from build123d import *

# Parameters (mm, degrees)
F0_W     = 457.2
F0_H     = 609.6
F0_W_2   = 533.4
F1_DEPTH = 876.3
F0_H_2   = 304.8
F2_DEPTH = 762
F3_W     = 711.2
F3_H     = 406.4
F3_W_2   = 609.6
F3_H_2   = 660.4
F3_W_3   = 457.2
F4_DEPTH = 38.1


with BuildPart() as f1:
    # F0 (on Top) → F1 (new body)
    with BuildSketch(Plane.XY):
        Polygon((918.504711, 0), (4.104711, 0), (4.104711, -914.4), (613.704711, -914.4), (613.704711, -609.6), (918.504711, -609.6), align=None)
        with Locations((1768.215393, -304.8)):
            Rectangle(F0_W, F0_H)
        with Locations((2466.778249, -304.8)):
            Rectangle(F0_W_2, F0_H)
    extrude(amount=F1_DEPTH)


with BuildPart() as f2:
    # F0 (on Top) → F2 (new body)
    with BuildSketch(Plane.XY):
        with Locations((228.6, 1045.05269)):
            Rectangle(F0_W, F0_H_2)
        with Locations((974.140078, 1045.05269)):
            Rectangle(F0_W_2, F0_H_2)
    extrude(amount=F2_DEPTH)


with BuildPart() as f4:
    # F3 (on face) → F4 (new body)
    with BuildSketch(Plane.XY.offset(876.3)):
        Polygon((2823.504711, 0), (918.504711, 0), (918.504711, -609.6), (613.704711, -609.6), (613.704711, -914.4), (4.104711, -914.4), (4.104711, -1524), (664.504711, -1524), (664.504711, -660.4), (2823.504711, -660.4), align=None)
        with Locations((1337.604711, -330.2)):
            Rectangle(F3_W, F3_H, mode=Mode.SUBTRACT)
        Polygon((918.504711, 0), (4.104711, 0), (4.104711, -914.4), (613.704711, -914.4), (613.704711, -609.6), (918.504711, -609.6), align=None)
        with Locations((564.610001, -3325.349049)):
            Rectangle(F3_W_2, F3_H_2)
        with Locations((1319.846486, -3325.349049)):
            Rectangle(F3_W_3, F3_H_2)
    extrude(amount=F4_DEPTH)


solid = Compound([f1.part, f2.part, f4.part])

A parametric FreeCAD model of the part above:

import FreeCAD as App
import Part
import Sketcher

V = App.Vector
Q = App.Units.Quantity


def add_polygon(sketch, points):
    """Adds a closed chain of lines whose ends are joined by coincident constraints."""
    first, n = sketch.GeometryCount, len(points)
    for a, b in zip(points, points[1:] + points[:1]):
        sketch.addGeometry(Part.LineSegment(App.Vector(*a, 0), App.Vector(*b, 0)), False)
    for i in range(n):
        sketch.addConstraint(Sketcher.Constraint("Coincident", first + i, 2, first + (i + 1) % n, 1))

doc = App.newDocument("Part")
body = doc.addObject("PartDesign::Body", "Body")
body.AllowCompound = True

# Sketch on XY plane
sketch1 = body.newObject("Sketcher::SketchObject", "Sketch")
sketch1.AttachmentSupport = (doc.getObject("XY_Plane"), [""])
sketch1.MapMode = "FlatFace"
add_polygon(sketch1, [(918.504711, 0), (4.104711, 0), (4.104711, -914.4), (613.704711, -914.4), (613.704711, -609.6), (918.504711, -609.6)])  # lines 0-5
add_polygon(sketch1, [(1539.615393, 0), (1539.615393, -609.6), (1996.815393, -609.6), (1996.815393, 0)])  # lines 6-9
add_polygon(sketch1, [(2200.078249, 0), (2200.078249, -609.6), (2733.478249, -609.6), (2733.478249, 0)])  # lines 10-13
sketch1.addConstraint([
    Sketcher.Constraint("Horizontal", 0),
    Sketcher.Constraint("Vertical", 1),
    Sketcher.Constraint("Horizontal", 2),
    Sketcher.Constraint("Vertical", 3),
    Sketcher.Constraint("Horizontal", 4),
    Sketcher.Constraint("Vertical", 5),
    Sketcher.Constraint("Vertical", 6),
    Sketcher.Constraint("Horizontal", 7),
    Sketcher.Constraint("Vertical", 8),
    Sketcher.Constraint("Horizontal", 9),
    Sketcher.Constraint("Vertical", 10),
    Sketcher.Constraint("Horizontal", 11),
    Sketcher.Constraint("Vertical", 12),
    Sketcher.Constraint("Horizontal", 13),
    Sketcher.Constraint("PointOnObject", 0, 2, -1),
    Sketcher.Constraint("PointOnObject", 8, 2, -1),
    Sketcher.Constraint("PointOnObject", 12, 2, -1),
    Sketcher.Constraint("Horizontal", 4, 2, 6, 2),
    Sketcher.Constraint("Horizontal", 7, 2, 10, 2),
    Sketcher.Constraint("Equal", 0, 1),
    Sketcher.Constraint("Equal", 4, 3),
    Sketcher.Constraint("DistanceX", 0, 2, 0, 1, Q("36 in")),
    Sketcher.Constraint("DistanceX", 2, 1, 2, 2, Q("24 in")),
    Sketcher.Constraint("DistanceX", 7, 1, 7, 2, Q("18 in")),
    Sketcher.Constraint("DistanceX", 11, 1, 11, 2, Q("21 in")),
    Sketcher.Constraint("DistanceX", -1, 1, 0, 2, Q("4.104711 mm")),
    Sketcher.Constraint("DistanceX", -1, 1, 10, 2, Q("2200.078249 mm")),
    Sketcher.Constraint("DistanceX", 4, 2, 6, 2, Q("621.110682 mm")),
])
pad1 = body.newObject("PartDesign::Pad", "Pad")
pad1.Profile = sketch1
pad1.Length = Q("34.5 in")
body2 = doc.addObject("PartDesign::Body", "Body001")
body2.AllowCompound = True

# Sketch on XY plane
sketch2 = body2.newObject("Sketcher::SketchObject", "Sketch001")
sketch2.AttachmentSupport = (doc.getObject("XY_Plane001"), [""])
sketch2.MapMode = "FlatFace"
add_polygon(sketch2, [(0, 1197.45269), (0, 892.65269), (457.2, 892.65269), (457.2, 1197.45269)])  # lines 0-3
add_polygon(sketch2, [(707.440078, 1197.45269), (707.440078, 892.65269), (1240.840078, 892.65269), (1240.840078, 1197.45269)])  # lines 4-7
sketch2.addConstraint([
    Sketcher.Constraint("Vertical", 0),
    Sketcher.Constraint("Horizontal", 1),
    Sketcher.Constraint("Vertical", 2),
    Sketcher.Constraint("Horizontal", 3),
    Sketcher.Constraint("Vertical", 4),
    Sketcher.Constraint("Horizontal", 5),
    Sketcher.Constraint("Vertical", 6),
    Sketcher.Constraint("Horizontal", 7),
    Sketcher.Constraint("PointOnObject", 0, 2, -2),
    Sketcher.Constraint("Horizontal", 1, 2, 4, 2),
    Sketcher.Constraint("Horizontal", 3, 2, 6, 2),
    Sketcher.Constraint("DistanceX", 1, 1, 1, 2, Q("18 in")),
    Sketcher.Constraint("DistanceX", 5, 1, 5, 2, Q("21 in")),
    Sketcher.Constraint("DistanceY", 0, 2, 0, 1, Q("12 in")),
    Sketcher.Constraint("DistanceY", -1, 1, 0, 2, Q("892.65269 mm")),
    Sketcher.Constraint("DistanceX", -1, 1, 4, 2, Q("707.440078 mm")),
])
pad2 = body2.newObject("PartDesign::Pad", "Pad001")
pad2.Profile = sketch2
pad2.Length = Q("30 in")
body3 = doc.addObject("PartDesign::Body", "Body002")
body3.AllowCompound = True

# Sketch on XY plane
sketch3 = body3.newObject("Sketcher::SketchObject", "Sketch002")
sketch3.AttachmentSupport = (doc.getObject("XY_Plane002"), [""])
sketch3.MapMode = "FlatFace"
sketch3.AttachmentOffset = App.Placement(V(0, 0, 34.5 * 25.4), App.Rotation())
add_polygon(sketch3, [(2823.504711, 0), (4.104711, 0), (4.104711, -1524), (664.504711, -1524), (664.504711, -660.4), (2823.504711, -660.4)])  # lines 0-5
add_polygon(sketch3, [(1693.204711, -533.4), (982.004711, -533.4), (982.004711, -127), (1693.204711, -127)])  # lines 6-9
add_polygon(sketch3, [(259.810001, -2995.149049), (259.810001, -3655.549049), (869.410001, -3655.549049), (869.410001, -2995.149049)])  # lines 10-13
add_polygon(sketch3, [(1091.246486, -2995.149049), (1091.246486, -3655.549049), (1548.446486, -3655.549049), (1548.446486, -2995.149049)])  # lines 14-17
sketch3.addConstraint([
    Sketcher.Constraint("Horizontal", 0),
    Sketcher.Constraint("Vertical", 1),
    Sketcher.Constraint("Horizontal", 2),
    Sketcher.Constraint("Vertical", 3),
    Sketcher.Constraint("Horizontal", 4),
    Sketcher.Constraint("Vertical", 5),
    Sketcher.Constraint("Horizontal", 6),
    Sketcher.Constraint("Vertical", 7),
    Sketcher.Constraint("Horizontal", 8),
    Sketcher.Constraint("Vertical", 9),
    Sketcher.Constraint("Vertical", 10),
    Sketcher.Constraint("Horizontal", 11),
    Sketcher.Constraint("Vertical", 12),
    Sketcher.Constraint("Horizontal", 13),
    Sketcher.Constraint("Vertical", 14),
    Sketcher.Constraint("Horizontal", 15),
    Sketcher.Constraint("Vertical", 16),
    Sketcher.Constraint("Horizontal", 17),
    Sketcher.Constraint("PointOnObject", 0, 2, -1),
    Sketcher.Constraint("Horizontal", 11, 2, 14, 2),
    Sketcher.Constraint("Horizontal", 13, 2, 16, 2),
    Sketcher.Constraint("Equal", 2, 5),
    Sketcher.Constraint("Equal", 5, 10),
    Sketcher.Constraint("DistanceX", 0, 2, 0, 1, Q("111 in")),
    Sketcher.Constraint("DistanceX", 2, 1, 2, 2, Q("26 in")),
    Sketcher.Constraint("DistanceX", 6, 2, 6, 1, Q("28 in")),
    Sketcher.Constraint("DistanceX", 11, 1, 11, 2, Q("24 in")),
    Sketcher.Constraint("DistanceX", 15, 1, 15, 2, Q("18 in")),
    Sketcher.Constraint("DistanceY", 1, 2, 1, 1, Q("60 in")),
    Sketcher.Constraint("DistanceY", 7, 1, 7, 2, Q("16 in")),
    Sketcher.Constraint("DistanceY", 6, 2, -1, 1, Q("21 in")),
    Sketcher.Constraint("DistanceX", 3, 2, 6, 2, Q("12.5 in")),
    Sketcher.Constraint("DistanceX", -1, 1, 10, 2, Q("259.810001 mm")),
    Sketcher.Constraint("DistanceX", -1, 1, 0, 2, Q("4.104711 mm")),
    Sketcher.Constraint("DistanceY", 10, 2, -1, 1, Q("3655.549049 mm")),
    Sketcher.Constraint("DistanceX", -1, 1, 14, 2, Q("1091.246486 mm")),
])
pad3 = body3.newObject("PartDesign::Pad", "Pad002")
pad3.Profile = sketch3
pad3.Length = Q("1.5 in")

doc.recompute()
